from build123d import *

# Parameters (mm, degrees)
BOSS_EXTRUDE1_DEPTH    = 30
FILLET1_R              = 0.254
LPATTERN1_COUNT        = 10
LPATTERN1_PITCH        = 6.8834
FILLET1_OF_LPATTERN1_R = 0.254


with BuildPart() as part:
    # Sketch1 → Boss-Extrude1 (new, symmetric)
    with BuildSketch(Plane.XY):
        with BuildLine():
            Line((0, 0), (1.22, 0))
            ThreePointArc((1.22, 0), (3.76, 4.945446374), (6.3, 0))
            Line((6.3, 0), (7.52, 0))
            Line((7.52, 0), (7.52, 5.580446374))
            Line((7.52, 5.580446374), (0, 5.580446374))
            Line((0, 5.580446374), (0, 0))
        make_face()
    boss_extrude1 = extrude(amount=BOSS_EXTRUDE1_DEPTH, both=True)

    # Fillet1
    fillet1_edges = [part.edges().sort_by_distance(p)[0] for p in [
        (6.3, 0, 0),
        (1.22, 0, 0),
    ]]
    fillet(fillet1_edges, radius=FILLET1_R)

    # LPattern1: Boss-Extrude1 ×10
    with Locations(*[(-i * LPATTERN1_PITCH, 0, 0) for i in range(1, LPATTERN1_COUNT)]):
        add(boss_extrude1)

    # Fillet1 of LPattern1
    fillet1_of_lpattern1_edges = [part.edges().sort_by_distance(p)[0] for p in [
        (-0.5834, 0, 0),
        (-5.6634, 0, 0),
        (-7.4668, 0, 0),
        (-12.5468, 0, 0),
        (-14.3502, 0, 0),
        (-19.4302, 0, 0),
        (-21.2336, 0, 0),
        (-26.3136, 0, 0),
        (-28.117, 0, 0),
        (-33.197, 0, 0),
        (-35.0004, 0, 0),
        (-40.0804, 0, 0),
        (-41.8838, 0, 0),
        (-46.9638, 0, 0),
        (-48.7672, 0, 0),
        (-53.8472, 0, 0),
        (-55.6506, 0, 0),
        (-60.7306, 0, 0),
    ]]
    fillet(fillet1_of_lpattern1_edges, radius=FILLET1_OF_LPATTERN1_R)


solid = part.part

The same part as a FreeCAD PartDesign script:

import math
import FreeCAD as App
import Part
import Sketcher


def edges_at(feature, points):
    """Names of the edges that pass closest to the given points."""
    edges = feature.Shape.Edges
    near = lambda p: min(range(len(edges)), key=lambda i: edges[i].distToShape(Part.Vertex(*p))[0])
    return sorted({f"Edge{near(p) + 1}" for p in points})

doc = App.newDocument("Part")
body = doc.addObject("PartDesign::Body", "Body")

# Sketch on XY plane
sketch1 = doc.addObject("Sketcher::SketchObject", "Sketch")
body.addObject(sketch1)
sketch1.AttachmentSupport = (doc.XY_Plane, [""])
sketch1.MapMode = "FlatFace"
sketch1.addGeometry([
    Part.LineSegment(App.Vector(0, 0, 0), App.Vector(1.22, 0, 0)),  # 0
    Part.ArcOfCircle(Part.Circle(App.Vector(3.76, 1.820446, 0), App.Vector(0, 0, 1), 3.125), math.radians(-35.629592), math.radians(215.629592)),  # 1
    Part.LineSegment(App.Vector(6.3, 0, 0), App.Vector(7.52, 0, 0)),  # 2
    Part.LineSegment(App.Vector(7.52, 0, 0), App.Vector(7.52, 5.580446, 0)),  # 3
    Part.LineSegment(App.Vector(7.52, 5.580446, 0), App.Vector(0, 5.580446, 0)),  # 4
    Part.LineSegment(App.Vector(0, 5.580446, 0), App.Vector(0, 0, 0)),  # 5
], False)
sketch1.addConstraint([
    Sketcher.Constraint("Coincident", 0, 2, 1, 2),
    Sketcher.Constraint("Coincident", 1, 1, 2, 1),
    Sketcher.Constraint("Coincident", 2, 2, 3, 1),
    Sketcher.Constraint("Coincident", 3, 2, 4, 1),
    Sketcher.Constraint("Coincident", 4, 2, 5, 1),
    Sketcher.Constraint("Coincident", 5, 2, 0, 1),
    Sketcher.Constraint("Horizontal", 0),
    Sketcher.Constraint("Horizontal", 2),
    Sketcher.Constraint("Vertical", 3),
    Sketcher.Constraint("Horizontal", 4),
    Sketcher.Constraint("Vertical", 5),
    Sketcher.Constraint("Coincident", 5, 2, -1, 1),
    Sketcher.Constraint("PointOnObject", 1, 1, -1),
    Sketcher.Constraint("Equal", 0, 2),
    Sketcher.Constraint("Radius", 1, 3.125),
    Sketcher.Constraint("DistanceX", 0, 1, 0, 2, 1.22),
    Sketcher.Constraint("DistanceX", 4, 2, 4, 1, 7.52),
    Sketcher.Constraint("DistanceY", 1, 3, 3, 2, 3.76),
])
pad1 = doc.addObject("PartDesign::Pad", "Pad")
body.addObject(pad1)
pad1.Profile = sketch1
pad1.Length = 60
pad1.Midplane = True
doc.recompute()

fillet = doc.addObject("PartDesign::Fillet", "Fillet")
body.addObject(fillet)
fillet.Base = (pad1, edges_at(pad1, [(6.3, 0, 0), (1.22, 0, 0)]))
fillet.Radius = 0.254
doc.recompute()

linearpattern = doc.addObject("PartDesign::LinearPattern", "LinearPattern")
body.addObject(linearpattern)
linearpattern.Originals = [pad1]
linearpattern.Direction = (doc.X_Axis, [""])
linearpattern.Mode = "offset"
linearpattern.Offset = 6.8834
linearpattern.Occurrences = 10
linearpattern.Reversed = True
body.Tip = linearpattern
doc.recompute()

fillet2 = doc.addObject("PartDesign::Fillet", "Fillet001")
body.addObject(fillet2)
fillet2.Base = (linearpattern, edges_at(linearpattern, [
    (-0.583, 0, 0),
    (-5.663, 0, 0),
    (-7.467, 0, 0),
    (-12.547, 0, 0),
    (-14.35, 0, 0),
    (-19.43, 0, 0),
    (-21.234, 0, 0),
    (-26.314, 0, 0),
    (-28.117, 0, 0),
    (-33.197, 0, 0),
    (-35, 0, 0),
    (-40.08, 0, 0),
    (-41.884, 0, 0),
    (-46.964, 0, 0),
    (-48.767, 0, 0),
    (-53.847, 0, 0),
    (-55.651, 0, 0),
    (-60.731, 0, 0),
]))
fillet2.Radius = 0.254

doc.recompute()
